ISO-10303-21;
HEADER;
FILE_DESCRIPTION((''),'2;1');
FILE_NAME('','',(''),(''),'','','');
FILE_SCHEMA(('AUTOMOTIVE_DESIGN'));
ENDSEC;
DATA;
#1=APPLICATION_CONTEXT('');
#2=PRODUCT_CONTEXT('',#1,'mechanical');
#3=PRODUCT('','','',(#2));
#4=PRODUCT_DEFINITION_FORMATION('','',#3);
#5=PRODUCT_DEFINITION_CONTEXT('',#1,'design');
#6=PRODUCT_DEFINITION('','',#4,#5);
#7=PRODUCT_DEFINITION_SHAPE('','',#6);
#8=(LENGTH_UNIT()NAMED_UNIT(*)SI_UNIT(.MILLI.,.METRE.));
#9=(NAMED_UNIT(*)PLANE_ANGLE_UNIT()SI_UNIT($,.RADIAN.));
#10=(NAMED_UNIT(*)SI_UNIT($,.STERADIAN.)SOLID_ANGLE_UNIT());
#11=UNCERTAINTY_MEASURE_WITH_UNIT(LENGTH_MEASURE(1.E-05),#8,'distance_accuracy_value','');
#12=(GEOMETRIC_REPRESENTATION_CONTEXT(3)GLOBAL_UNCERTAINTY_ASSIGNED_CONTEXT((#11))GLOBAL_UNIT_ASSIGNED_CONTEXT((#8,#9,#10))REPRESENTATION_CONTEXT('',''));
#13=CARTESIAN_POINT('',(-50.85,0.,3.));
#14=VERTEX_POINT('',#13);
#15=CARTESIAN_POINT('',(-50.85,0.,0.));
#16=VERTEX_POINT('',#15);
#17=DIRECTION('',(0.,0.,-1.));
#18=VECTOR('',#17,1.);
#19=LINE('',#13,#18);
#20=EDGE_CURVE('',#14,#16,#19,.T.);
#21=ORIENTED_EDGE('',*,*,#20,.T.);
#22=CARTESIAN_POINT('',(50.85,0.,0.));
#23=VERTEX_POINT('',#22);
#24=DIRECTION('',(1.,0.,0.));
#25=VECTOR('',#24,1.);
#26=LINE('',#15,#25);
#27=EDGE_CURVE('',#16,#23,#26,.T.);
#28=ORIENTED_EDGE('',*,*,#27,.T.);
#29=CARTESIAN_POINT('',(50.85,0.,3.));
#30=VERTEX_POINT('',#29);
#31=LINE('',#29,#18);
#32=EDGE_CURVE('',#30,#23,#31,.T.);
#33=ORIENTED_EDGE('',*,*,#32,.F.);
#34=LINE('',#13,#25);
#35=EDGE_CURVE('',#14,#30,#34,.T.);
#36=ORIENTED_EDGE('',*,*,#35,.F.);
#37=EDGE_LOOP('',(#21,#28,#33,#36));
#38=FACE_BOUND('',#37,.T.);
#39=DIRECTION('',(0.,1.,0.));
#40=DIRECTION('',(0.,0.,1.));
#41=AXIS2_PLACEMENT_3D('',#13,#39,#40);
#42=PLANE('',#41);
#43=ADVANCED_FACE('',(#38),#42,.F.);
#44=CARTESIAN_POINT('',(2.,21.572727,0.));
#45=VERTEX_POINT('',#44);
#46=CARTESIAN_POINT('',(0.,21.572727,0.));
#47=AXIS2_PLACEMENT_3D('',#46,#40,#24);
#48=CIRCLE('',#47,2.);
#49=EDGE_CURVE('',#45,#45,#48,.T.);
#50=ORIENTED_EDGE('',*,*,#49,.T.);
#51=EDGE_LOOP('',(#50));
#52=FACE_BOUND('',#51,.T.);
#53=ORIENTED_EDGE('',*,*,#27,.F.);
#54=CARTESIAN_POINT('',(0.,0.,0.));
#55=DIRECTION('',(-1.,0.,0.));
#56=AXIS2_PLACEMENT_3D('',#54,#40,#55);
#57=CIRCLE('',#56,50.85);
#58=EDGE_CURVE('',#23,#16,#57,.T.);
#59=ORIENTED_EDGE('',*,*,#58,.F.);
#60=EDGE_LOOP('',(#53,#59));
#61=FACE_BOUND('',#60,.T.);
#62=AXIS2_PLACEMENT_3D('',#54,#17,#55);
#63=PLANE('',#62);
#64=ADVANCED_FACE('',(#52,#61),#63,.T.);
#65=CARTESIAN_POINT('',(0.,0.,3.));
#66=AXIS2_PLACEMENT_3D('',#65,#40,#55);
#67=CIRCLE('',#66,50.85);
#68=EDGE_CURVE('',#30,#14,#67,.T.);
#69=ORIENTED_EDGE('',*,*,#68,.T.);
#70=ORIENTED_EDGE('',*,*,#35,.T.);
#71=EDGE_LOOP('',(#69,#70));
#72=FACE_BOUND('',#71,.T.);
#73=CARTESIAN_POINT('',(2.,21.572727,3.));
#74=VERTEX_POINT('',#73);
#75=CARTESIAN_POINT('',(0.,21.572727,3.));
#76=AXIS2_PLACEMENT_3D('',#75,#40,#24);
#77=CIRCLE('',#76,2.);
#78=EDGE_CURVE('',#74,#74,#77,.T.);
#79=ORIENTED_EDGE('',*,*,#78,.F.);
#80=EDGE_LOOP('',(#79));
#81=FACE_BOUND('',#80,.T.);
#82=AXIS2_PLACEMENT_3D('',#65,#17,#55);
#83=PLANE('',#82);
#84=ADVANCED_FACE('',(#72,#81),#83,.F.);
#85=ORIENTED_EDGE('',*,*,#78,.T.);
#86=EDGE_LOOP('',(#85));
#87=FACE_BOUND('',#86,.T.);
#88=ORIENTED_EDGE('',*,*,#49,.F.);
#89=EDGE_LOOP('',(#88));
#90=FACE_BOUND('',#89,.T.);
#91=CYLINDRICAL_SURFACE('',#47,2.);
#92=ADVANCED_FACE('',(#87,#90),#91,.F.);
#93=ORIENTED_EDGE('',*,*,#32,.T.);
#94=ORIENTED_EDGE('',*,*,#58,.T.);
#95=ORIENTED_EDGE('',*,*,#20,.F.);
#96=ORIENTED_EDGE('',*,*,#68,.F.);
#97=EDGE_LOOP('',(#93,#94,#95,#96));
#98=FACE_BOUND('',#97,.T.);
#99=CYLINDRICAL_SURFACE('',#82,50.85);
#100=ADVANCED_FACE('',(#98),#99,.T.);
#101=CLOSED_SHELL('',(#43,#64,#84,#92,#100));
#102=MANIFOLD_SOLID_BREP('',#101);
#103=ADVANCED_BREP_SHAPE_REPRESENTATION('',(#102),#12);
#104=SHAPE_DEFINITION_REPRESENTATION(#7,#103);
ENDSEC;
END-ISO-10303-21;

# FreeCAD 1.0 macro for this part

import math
import FreeCAD as App
import Part
import Sketcher

doc = App.newDocument("Part")
body = doc.addObject("PartDesign::Body", "Body")

# Sketch on XY plane
sketch1 = body.newObject("Sketcher::SketchObject", "Sketch")
sketch1.AttachmentSupport = (doc.getObject("XY_Plane"), [""])
sketch1.MapMode = "FlatFace"
sketch1.addGeometry([
    Part.LineSegment(App.Vector(-51, 0, 0), App.Vector(51, 0, 0)),
    Part.ArcOfCircle(Part.Circle(App.Vector(0, 0, 0), App.Vector(0, 0, 1), 51), math.radians(0), math.radians(180)),
], False)
sketch1.addConstraint([
    Sketcher.Constraint("Coincident", 0, 1, 1, 2),
    Sketcher.Constraint("Coincident", 1, 1, 0, 2),
    Sketcher.Constraint("Horizontal", 0),
    Sketcher.Constraint("Coincident", 1, 3, -1, 1),
    Sketcher.Constraint("PointOnObject", 0, 1, -1),
    Sketcher.Constraint("Radius", 1, 50.85),
])
pad1 = body.newObject("PartDesign::Pad", "Pad")
pad1.Profile = sketch1
pad1.Length = 3

# Sketch on XY plane
sketch2 = body.newObject("Sketcher::SketchObject", "Sketch001")
sketch2.AttachmentSupport = (doc.getObject("XY_Plane"), [""])
sketch2.MapMode = "FlatFace"
sketch2.AttachmentOffset = App.Placement(App.Vector(0, 0, 3), App.Rotation())
sketch2.addGeometry(Part.Circle(App.Vector(0, 21.6, 0), App.Vector(0, 0, 1), 2), False)
sketch2.addConstraint([
    Sketcher.Constraint("PointOnObject", 0, 3, -2),
    Sketcher.Constraint("Diameter", 0, 4.0),
    Sketcher.Constraint("DistanceY", -1, 1, 0, 3, 21.572727),
])
pocket1 = body.newObject("PartDesign::Pocket", "Pocket")
pocket1.Profile = sketch2
pocket1.Type = "ThroughAll"

doc.recompute()
